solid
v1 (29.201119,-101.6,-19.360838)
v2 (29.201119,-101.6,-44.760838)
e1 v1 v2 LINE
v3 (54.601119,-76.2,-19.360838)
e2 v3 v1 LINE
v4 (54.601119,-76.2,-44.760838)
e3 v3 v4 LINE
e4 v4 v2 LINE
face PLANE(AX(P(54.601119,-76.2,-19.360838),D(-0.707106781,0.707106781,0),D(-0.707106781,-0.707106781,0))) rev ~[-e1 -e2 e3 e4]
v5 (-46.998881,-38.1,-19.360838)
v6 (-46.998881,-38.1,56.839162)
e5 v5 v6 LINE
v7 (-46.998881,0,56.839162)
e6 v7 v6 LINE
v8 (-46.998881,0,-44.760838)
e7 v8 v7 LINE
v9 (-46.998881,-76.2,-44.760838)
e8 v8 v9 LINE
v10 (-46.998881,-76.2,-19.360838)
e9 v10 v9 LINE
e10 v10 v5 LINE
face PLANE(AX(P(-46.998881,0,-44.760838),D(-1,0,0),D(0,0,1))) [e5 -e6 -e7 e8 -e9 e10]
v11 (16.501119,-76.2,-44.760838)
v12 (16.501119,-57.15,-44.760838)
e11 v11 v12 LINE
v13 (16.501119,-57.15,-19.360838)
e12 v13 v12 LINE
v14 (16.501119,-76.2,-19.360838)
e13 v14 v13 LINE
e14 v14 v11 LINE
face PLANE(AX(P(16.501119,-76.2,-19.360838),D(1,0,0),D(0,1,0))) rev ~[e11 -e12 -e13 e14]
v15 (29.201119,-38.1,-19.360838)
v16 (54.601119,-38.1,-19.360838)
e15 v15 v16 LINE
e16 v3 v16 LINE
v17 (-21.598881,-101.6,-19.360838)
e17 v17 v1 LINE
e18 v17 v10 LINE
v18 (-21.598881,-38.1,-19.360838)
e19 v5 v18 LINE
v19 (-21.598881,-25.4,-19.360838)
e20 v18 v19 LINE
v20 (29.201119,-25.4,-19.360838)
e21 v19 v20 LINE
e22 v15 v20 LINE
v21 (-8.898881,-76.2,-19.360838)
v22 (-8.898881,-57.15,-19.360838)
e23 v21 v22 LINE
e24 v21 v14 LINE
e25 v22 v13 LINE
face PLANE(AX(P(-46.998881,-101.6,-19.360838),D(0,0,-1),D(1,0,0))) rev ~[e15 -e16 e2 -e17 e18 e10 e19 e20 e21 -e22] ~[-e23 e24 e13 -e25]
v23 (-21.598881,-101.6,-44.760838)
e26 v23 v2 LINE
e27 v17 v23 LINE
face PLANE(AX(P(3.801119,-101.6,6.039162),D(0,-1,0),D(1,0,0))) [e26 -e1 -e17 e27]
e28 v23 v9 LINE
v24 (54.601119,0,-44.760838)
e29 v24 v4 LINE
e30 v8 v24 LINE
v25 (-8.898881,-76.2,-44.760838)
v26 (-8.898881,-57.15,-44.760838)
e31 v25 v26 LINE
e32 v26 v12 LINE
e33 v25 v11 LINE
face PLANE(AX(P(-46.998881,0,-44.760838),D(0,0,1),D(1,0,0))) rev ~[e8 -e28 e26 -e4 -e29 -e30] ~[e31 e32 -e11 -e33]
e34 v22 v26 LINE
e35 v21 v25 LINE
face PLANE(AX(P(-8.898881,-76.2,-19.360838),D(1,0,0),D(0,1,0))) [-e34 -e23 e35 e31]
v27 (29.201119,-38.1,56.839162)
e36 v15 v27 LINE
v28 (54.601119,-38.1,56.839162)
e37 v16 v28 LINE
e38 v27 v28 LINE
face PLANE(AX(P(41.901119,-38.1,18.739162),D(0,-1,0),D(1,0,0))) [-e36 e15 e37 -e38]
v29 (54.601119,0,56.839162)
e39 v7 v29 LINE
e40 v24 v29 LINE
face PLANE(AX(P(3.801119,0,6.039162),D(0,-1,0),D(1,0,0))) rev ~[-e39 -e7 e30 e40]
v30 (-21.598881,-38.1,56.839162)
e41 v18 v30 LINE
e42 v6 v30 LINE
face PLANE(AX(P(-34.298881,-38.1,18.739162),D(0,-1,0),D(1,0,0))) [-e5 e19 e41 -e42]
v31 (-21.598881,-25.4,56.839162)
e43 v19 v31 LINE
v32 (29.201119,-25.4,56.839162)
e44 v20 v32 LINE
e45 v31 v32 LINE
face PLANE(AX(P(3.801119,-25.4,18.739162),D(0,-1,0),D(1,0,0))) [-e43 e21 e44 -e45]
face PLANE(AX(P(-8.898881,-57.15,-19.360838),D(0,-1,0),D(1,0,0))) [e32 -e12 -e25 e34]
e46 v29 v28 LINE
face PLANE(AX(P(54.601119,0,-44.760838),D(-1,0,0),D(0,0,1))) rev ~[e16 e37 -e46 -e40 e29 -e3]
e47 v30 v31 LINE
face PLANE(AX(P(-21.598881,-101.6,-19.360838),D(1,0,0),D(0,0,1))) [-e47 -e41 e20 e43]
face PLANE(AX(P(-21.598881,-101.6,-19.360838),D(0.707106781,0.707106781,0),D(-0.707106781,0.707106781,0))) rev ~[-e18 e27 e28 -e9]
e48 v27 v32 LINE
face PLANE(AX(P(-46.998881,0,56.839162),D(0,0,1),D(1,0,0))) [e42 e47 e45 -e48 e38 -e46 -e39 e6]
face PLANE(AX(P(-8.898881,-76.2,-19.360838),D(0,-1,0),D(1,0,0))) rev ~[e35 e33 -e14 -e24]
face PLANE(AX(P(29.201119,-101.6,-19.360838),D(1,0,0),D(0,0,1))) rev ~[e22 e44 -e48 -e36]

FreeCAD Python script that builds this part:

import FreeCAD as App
import Part
import Sketcher
from FreeCAD import Vector
Q = App.Units.Quantity

doc = App.newDocument("Part")
body = doc.addObject("PartDesign::Body", "Body")

# Sketch on XZ plane
sketch1 = body.newObject("Sketcher::SketchObject", "Sketch")
sketch1.AttachmentSupport = (doc.getObject("XZ_Plane"), [""])
sketch1.MapMode = "FlatFace"
sketch1.addGeometry([
    Part.LineSegment(Vector(-47, 57, 0), Vector(-47, -45, 0)),
    Part.LineSegment(Vector(-47, -45, 0), Vector(55, -45, 0)),
    Part.LineSegment(Vector(55, -45, 0), Vector(55, 57, 0)),
    Part.LineSegment(Vector(55, 57, 0), Vector(-47, 57, 0)),
], False)
sketch1.addConstraint([
    Sketcher.Constraint("Coincident", 0, 2, 1, 1),
    Sketcher.Constraint("Coincident", 1, 2, 2, 1),
    Sketcher.Constraint("Coincident", 2, 2, 3, 1),
    Sketcher.Constraint("Coincident", 3, 2, 0, 1),
    Sketcher.Constraint("Vertical", 0),
    Sketcher.Constraint("Horizontal", 1),
    Sketcher.Constraint("Vertical", 2),
    Sketcher.Constraint("Horizontal", 3),
    Sketcher.Constraint("Equal", 3, 0),
    Sketcher.Constraint("DistanceX", 1, 1, 1, 2, Q("4 in")),
    Sketcher.Constraint("DistanceX", 0, 2, -1, 1, Q("46.998881 mm")),
    Sketcher.Constraint("DistanceY", 0, 2, -1, 1, Q("44.760838 mm")),
])
pad1 = body.newObject("PartDesign::Pad", "Pad")
pad1.Profile = sketch1
pad1.Length = Q("4 in")

# Sketch on XZ plane
sketch2 = body.newObject("Sketcher::SketchObject", "Sketch001")
sketch2.AttachmentSupport = (doc.getObject("XZ_Plane"), [""])
sketch2.MapMode = "FlatFace"
sketch2.AttachmentOffset = App.Placement(Vector(0, 0, 4 * 25.4), App.Rotation())
sketch2.addGeometry([
    Part.LineSegment(Vector(-22, 57, 0), Vector(-22, -19, 0)),
    Part.LineSegment(Vector(-22, -19, 0), Vector(29, -19, 0)),
    Part.LineSegment(Vector(29, -19, 0), Vector(29, 57, 0)),
    Part.LineSegment(Vector(29, 57, 0), Vector(-22, 57, 0)),
], False)
sketch2.addConstraint([
    Sketcher.Constraint("Coincident", 0, 2, 1, 1),
    Sketcher.Constraint("Coincident", 1, 2, 2, 1),
    Sketcher.Constraint("Coincident", 2, 2, 3, 1),
    Sketcher.Constraint("Coincident", 3, 2, 0, 1),
    Sketcher.Constraint("Vertical", 0),
    Sketcher.Constraint("Horizontal", 1),
    Sketcher.Constraint("Vertical", 2),
    Sketcher.Constraint("Horizontal", 3),
    Sketcher.Constraint("DistanceX", 1, 1, 1, 2, Q("2 in")),
    Sketcher.Constraint("DistanceY", 0, 2, 0, 1, Q("3 in")),
    Sketcher.Constraint("DistanceX", 0, 2, -1, 1, Q("21.598881 mm")),
    Sketcher.Constraint("DistanceY", 0, 2, -1, 1, Q("19.360838 mm")),
])
pocket1 = body.newObject("PartDesign::Pocket", "Pocket")
pocket1.Profile = sketch2
pocket1.Length = Q("3 in")

# Sketch on XZ plane
sketch3 = body.newObject("Sketcher::SketchObject", "Sketch002")
sketch3.AttachmentSupport = (doc.getObject("XZ_Plane"), [""])
sketch3.MapMode = "FlatFace"
sketch3.AttachmentOffset = App.Placement(Vector(0, 0, 4 * 25.4), App.Rotation())
sketch3.addGeometry([
    Part.LineSegment(Vector(29, 57, 0), Vector(29, -19, 0)),  # 0
    Part.LineSegment(Vector(29, -19, 0), Vector(55, -19, 0)),  # 1
    Part.LineSegment(Vector(55, -19, 0), Vector(55, 57, 0)),  # 2
    Part.LineSegment(Vector(55, 57, 0), Vector(29, 57, 0)),  # 3
    Part.LineSegment(Vector(-47, 57, 0), Vector(-47, -19, 0)),  # 4
    Part.LineSegment(Vector(-47, -19, 0), Vector(-22, -19, 0)),  # 5
    Part.LineSegment(Vector(-22, -19, 0), Vector(-22, 57, 0)),  # 6
    Part.LineSegment(Vector(-22, 57, 0), Vector(-47, 57, 0)),  # 7
], False)
sketch3.addConstraint([
    Sketcher.Constraint("Coincident", 0, 2, 1, 1),
    Sketcher.Constraint("Coincident", 1, 2, 2, 1),
    Sketcher.Constraint("Coincident", 2, 2, 3, 1),
    Sketcher.Constraint("Coincident", 3, 2, 0, 1),
    Sketcher.Constraint("Coincident", 4, 2, 5, 1),
    Sketcher.Constraint("Coincident", 5, 2, 6, 1),
    Sketcher.Constraint("Coincident", 6, 2, 7, 1),
    Sketcher.Constraint("Coincident", 7, 2, 4, 1),
    Sketcher.Constraint("Vertical", 0),
    Sketcher.Constraint("Horizontal", 1),
    Sketcher.Constraint("Vertical", 2),
    Sketcher.Constraint("Horizontal", 3),
    Sketcher.Constraint("Vertical", 4),
    Sketcher.Constraint("Horizontal", 5),
    Sketcher.Constraint("Vertical", 6),
    Sketcher.Constraint("Horizontal", 7),
    Sketcher.Constraint("Horizontal", 1, 2, 4, 2),
    Sketcher.Constraint("Horizontal", 3, 2, 6, 2),
    Sketcher.Constraint("Equal", 3, 5),
    Sketcher.Constraint("DistanceX", 1, 1, 1, 2, Q("1 in")),
    Sketcher.Constraint("DistanceY", 0, 2, 0, 1, Q("3 in")),
    Sketcher.Constraint("DistanceX", 4, 2, 0, 2, Q("3 in")),
    Sketcher.Constraint("DistanceX", -1, 1, 0, 2, Q("29.201119 mm")),
    Sketcher.Constraint("DistanceY", 0, 2, -1, 1, Q("19.360838 mm")),
])
pocket2 = body.newObject("PartDesign::Pocket", "Pocket001")
pocket2.Profile = sketch3
pocket2.Length = Q("2.5 in")

# Sketch on XY plane
sketch4 = body.newObject("Sketcher::SketchObject", "Sketch003")
sketch4.AttachmentSupport = (doc.getObject("XY_Plane"), [""])
sketch4.MapMode = "FlatFace"
sketch4.AttachmentOffset = App.Placement(Vector(0, 0, -19.360838), App.Rotation())
sketch4.addGeometry([
    Part.LineSegment(Vector(29, -102, 0), Vector(55, -102, 0)),
    Part.LineSegment(Vector(55, -102, 0), Vector(55, -76, 0)),
    Part.LineSegment(Vector(55, -76, 0), Vector(29, -102, 0)),
], False)
sketch4.addConstraint([
    Sketcher.Constraint("Coincident", 0, 2, 1, 1),
    Sketcher.Constraint("Coincident", 1, 2, 2, 1),
    Sketcher.Constraint("Coincident", 2, 2, 0, 1),
    Sketcher.Constraint("Horizontal", 0),
    Sketcher.Constraint("Vertical", 1),
    Sketcher.Constraint("Equal", 0, 1),
    Sketcher.Constraint("DistanceX", 0, 1, 0, 2, Q("1 in")),
    Sketcher.Constraint("DistanceY", 0, 2, -1, 1, Q("4 in")),
    Sketcher.Constraint("DistanceX", -1, 1, 0, 2, Q("54.601119 mm")),
])
pocket3 = body.newObject("PartDesign::Pocket", "Pocket002")
pocket3.Profile = sketch4
pocket3.Length = Q("1 in")

# Sketch on XY plane
sketch5 = body.newObject("Sketcher::SketchObject", "Sketch004")
sketch5.AttachmentSupport = (doc.getObject("XY_Plane"), [""])
sketch5.MapMode = "FlatFace"
sketch5.AttachmentOffset = App.Placement(Vector(0, 0, -19.360838), App.Rotation())
sketch5.addGeometry([
    Part.LineSegment(Vector(-47, -76, 0), Vector(-47, -102, 0)),
    Part.LineSegment(Vector(-47, -102, 0), Vector(-22, -102, 0)),
    Part.LineSegment(Vector(-22, -102, 0), Vector(-47, -76, 0)),
], False)
sketch5.addConstraint([
    Sketcher.Constraint("Coincident", 0, 2, 1, 1),
    Sketcher.Constraint("Coincident", 1, 2, 2, 1),
    Sketcher.Constraint("Coincident", 2, 2, 0, 1),
    Sketcher.Constraint("Vertical", 0),
    Sketcher.Constraint("Horizontal", 1),
    Sketcher.Constraint("Equal", 1, 0),
    Sketcher.Constraint("DistanceX", 1, 1, 1, 2, Q("1 in")),
    Sketcher.Constraint("DistanceY", 0, 2, -1, 1, Q("4 in")),
    Sketcher.Constraint("DistanceX", 0, 2, -1, 1, Q("46.998881 mm")),
])
pocket4 = body.newObject("PartDesign::Pocket", "Pocket003")
pocket4.Profile = sketch5
pocket4.Length = Q("1 in")

# Sketch on XY plane
sketch6 = body.newObject("Sketcher::SketchObject", "Sketch005")
sketch6.AttachmentSupport = (doc.getObject("XY_Plane"), [""])
sketch6.MapMode = "FlatFace"
sketch6.AttachmentOffset = App.Placement(Vector(0, 0, -19.360838), App.Rotation())
sketch6.addGeometry([
    Part.LineSegment(Vector(-9, -57, 0), Vector(-9, -76, 0)),
    Part.LineSegment(Vector(-9, -76, 0), Vector(17, -76, 0)),
    Part.LineSegment(Vector(17, -76, 0), Vector(17, -57, 0)),
    Part.LineSegment(Vector(17, -57, 0), Vector(-9, -57, 0)),
], False)
sketch6.addConstraint([
    Sketcher.Constraint("Coincident", 0, 2, 1, 1),
    Sketcher.Constraint("Coincident", 1, 2, 2, 1),
    Sketcher.Constraint("Coincident", 2, 2, 3, 1),
    Sketcher.Constraint("Coincident", 3, 2, 0, 1),
    Sketcher.Constraint("Vertical", 0),
    Sketcher.Constraint("Horizontal", 1),
    Sketcher.Constraint("Vertical", 2),
    Sketcher.Constraint("Horizontal", 3),
    Sketcher.Constraint("DistanceX", 1, 1, 1, 2, Q("1 in")),
    Sketcher.Constraint("DistanceY", 0, 2, -1, 1, Q("3 in")),
    Sketcher.Constraint("DistanceY", 0, 2, 0, 1, Q("0.75 in")),
    Sketcher.Constraint("DistanceX", 0, 2, -1, 1, Q("8.898881 mm")),
])
pocket5 = body.newObject("PartDesign::Pocket", "Pocket004")
pocket5.Profile = sketch6
pocket5.Length = Q("1 in")

doc.recompute()
